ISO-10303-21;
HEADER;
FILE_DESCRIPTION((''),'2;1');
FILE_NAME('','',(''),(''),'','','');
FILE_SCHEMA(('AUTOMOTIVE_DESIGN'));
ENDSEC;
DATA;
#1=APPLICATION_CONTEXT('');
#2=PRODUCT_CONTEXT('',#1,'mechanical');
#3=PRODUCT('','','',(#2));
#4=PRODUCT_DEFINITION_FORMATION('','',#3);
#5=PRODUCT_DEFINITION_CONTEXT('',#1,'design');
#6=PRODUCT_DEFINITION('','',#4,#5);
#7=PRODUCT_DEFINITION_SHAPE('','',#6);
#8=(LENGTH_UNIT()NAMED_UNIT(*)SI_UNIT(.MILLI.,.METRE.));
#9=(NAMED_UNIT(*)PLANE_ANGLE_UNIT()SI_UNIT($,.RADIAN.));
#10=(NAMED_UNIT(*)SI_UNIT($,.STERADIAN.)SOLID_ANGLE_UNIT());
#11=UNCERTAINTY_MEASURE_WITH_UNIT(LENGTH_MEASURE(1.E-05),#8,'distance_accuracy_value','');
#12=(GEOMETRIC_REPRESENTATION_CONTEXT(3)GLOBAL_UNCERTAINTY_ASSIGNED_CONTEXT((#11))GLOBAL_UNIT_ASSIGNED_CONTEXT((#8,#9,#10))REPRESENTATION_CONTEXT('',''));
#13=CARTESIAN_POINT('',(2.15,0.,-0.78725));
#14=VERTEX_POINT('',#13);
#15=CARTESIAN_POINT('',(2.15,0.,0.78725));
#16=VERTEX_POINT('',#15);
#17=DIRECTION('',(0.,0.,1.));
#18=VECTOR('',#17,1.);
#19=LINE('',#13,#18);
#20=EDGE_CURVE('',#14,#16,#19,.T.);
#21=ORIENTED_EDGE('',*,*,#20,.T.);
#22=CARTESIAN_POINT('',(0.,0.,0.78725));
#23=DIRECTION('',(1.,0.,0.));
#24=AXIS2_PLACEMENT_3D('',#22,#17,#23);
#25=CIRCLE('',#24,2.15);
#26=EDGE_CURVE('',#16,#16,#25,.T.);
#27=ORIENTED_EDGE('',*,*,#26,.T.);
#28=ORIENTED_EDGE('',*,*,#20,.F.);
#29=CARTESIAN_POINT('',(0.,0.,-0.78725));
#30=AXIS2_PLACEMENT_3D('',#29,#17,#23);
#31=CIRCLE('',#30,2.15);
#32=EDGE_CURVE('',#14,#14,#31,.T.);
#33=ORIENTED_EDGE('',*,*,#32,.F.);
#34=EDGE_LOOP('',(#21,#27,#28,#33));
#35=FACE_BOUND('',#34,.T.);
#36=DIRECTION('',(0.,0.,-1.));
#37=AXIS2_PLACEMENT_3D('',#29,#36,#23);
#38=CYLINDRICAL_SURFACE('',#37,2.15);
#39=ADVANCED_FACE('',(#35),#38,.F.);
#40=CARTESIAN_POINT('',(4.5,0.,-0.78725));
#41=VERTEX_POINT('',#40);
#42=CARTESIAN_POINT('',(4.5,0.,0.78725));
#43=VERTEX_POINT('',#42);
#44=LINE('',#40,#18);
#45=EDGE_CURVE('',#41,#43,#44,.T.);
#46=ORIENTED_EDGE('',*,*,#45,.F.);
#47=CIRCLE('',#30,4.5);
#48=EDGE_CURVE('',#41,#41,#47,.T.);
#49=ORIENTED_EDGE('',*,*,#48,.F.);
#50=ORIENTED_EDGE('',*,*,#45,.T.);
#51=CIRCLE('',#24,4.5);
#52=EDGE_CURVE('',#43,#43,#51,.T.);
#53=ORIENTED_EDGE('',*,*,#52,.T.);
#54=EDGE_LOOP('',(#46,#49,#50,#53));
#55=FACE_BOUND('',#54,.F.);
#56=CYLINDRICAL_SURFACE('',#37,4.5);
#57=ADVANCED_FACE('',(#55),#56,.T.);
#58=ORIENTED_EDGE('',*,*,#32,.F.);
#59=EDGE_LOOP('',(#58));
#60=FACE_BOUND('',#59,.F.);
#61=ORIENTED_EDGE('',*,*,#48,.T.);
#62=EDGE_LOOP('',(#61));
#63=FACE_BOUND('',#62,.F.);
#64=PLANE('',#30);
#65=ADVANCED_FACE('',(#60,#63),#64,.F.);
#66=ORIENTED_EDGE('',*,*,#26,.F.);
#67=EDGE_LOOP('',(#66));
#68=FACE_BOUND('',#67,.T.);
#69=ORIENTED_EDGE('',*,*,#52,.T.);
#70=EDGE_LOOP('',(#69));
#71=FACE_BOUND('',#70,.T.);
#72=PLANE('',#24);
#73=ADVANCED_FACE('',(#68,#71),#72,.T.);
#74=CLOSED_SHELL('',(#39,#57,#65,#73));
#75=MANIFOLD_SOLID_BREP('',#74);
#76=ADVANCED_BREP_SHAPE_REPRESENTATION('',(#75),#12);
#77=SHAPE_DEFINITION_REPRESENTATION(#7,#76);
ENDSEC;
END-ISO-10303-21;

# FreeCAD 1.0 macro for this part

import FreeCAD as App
import Part
import Sketcher

V = App.Vector

doc = App.newDocument("Part")
params = doc.addObject("Spreadsheet::Sheet", "Params")
for row, (alias, value) in enumerate([
    ("sketch1_diameter", "9 mm"),
    ("sketch1_diameter2", "4.3 mm"),
    ("pad1_length", "0.78725 mm"),
    ("pad1_length2", "0.78725 mm"),
], start=1):
    params.set(f"A{row}", alias)
    params.set(f"B{row}", "=" + value)
    params.setAlias(f"B{row}", alias)

body = doc.addObject("PartDesign::Body", "Body")

sketch1 = body.newObject("Sketcher::SketchObject", "Sketch")
sketch1.AttachmentSupport = (doc.getObject("XY_Plane"), [""])
sketch1.MapMode = "FlatFace"
sketch1.addGeometry([
    Part.Circle(V(0, 0, 0), V(0, 0, 1), 4.5),
    Part.Circle(V(0, 0, 0), V(0, 0, 1), 2.1),
], False)
sketch1.addConstraint([
    Sketcher.Constraint("Coincident", 0, 3, -1, 1),
    Sketcher.Constraint("Coincident", 1, 3, -1, 1),
    Sketcher.Constraint("Diameter", 0, 9.0),
    Sketcher.Constraint("Diameter", 1, 4.3),
])
sketch1.setExpression("Constraints[2]", "Params.sketch1_diameter")
sketch1.setExpression("Constraints[3]", "Params.sketch1_diameter2")
pad1 = body.newObject("PartDesign::Pad", "Pad")
pad1.Profile = sketch1
pad1.Type = "TwoLengths"
pad1.setExpression("Length", "Params.pad1_length")
pad1.setExpression("Length2", "Params.pad1_length2")

doc.recompute()
